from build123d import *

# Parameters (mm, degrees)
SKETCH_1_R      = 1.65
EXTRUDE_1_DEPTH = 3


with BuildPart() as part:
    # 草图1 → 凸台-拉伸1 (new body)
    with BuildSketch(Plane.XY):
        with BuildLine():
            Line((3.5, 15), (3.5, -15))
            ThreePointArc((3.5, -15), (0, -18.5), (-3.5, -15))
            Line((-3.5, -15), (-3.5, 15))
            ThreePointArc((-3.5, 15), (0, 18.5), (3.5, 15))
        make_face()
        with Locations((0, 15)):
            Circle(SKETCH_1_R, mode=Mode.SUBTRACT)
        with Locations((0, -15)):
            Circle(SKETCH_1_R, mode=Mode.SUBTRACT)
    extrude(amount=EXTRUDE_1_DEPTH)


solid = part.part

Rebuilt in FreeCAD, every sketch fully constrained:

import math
import FreeCAD as App
import Part
import Sketcher
from FreeCAD import Vector

doc = App.newDocument("Part")
body = doc.addObject("PartDesign::Body", "Body")

# Sketch on XY plane
sketch1 = body.newObject("Sketcher::SketchObject", "Sketch")
sketch1.AttachmentSupport = (doc.getObject("XY_Plane"), [""])
sketch1.MapMode = "FlatFace"
sketch1.addGeometry([
    Part.LineSegment(Vector(3.5, -15, 0), Vector(3.5, 15, 0)),  # 0
    Part.ArcOfCircle(Part.Circle(Vector(0, 15, 0), Vector(0, 0, 1), 3.5), math.radians(0), math.radians(180)),  # 1
    Part.LineSegment(Vector(-3.5, 15, 0), Vector(-3.5, -15, 0)),  # 2
    Part.ArcOfCircle(Part.Circle(Vector(0, -15, 0), Vector(0, 0, 1), 3.5), math.radians(180), math.radians(360)),  # 3
    Part.Circle(Vector(0, -15, 0), Vector(0, 0, 1), 1.6),  # 4
    Part.Circle(Vector(0, 15, 0), Vector(0, 0, 1), 1.6),  # 5
], False)
sketch1.addConstraint([
    Sketcher.Constraint("Tangent", 0, 2, 1, 1),
    Sketcher.Constraint("Tangent", 1, 2, 2, 1),
    Sketcher.Constraint("Tangent", 2, 2, 3, 1),
    Sketcher.Constraint("Tangent", 3, 2, 0, 1),
    Sketcher.Constraint("Vertical", 0),
    Sketcher.Constraint("Vertical", 2),
    Sketcher.Constraint("Coincident", 4, 3, 3, 3),
    Sketcher.Constraint("Coincident", 5, 3, 1, 3),
    Sketcher.Constraint("Equal", 4, 5),
    Sketcher.Constraint("Symmetric", 1, 3, 3, 3, -1, 1),
    Sketcher.Constraint("Diameter", 4, 3.3),
    Sketcher.Constraint("Radius", 1, 3.5),
    Sketcher.Constraint("DistanceY", 0, 1, 0, 2, 30.0),
])
pad1 = body.newObject("PartDesign::Pad", "Pad")
pad1.Profile = sketch1
pad1.Length = 3

doc.recompute()
